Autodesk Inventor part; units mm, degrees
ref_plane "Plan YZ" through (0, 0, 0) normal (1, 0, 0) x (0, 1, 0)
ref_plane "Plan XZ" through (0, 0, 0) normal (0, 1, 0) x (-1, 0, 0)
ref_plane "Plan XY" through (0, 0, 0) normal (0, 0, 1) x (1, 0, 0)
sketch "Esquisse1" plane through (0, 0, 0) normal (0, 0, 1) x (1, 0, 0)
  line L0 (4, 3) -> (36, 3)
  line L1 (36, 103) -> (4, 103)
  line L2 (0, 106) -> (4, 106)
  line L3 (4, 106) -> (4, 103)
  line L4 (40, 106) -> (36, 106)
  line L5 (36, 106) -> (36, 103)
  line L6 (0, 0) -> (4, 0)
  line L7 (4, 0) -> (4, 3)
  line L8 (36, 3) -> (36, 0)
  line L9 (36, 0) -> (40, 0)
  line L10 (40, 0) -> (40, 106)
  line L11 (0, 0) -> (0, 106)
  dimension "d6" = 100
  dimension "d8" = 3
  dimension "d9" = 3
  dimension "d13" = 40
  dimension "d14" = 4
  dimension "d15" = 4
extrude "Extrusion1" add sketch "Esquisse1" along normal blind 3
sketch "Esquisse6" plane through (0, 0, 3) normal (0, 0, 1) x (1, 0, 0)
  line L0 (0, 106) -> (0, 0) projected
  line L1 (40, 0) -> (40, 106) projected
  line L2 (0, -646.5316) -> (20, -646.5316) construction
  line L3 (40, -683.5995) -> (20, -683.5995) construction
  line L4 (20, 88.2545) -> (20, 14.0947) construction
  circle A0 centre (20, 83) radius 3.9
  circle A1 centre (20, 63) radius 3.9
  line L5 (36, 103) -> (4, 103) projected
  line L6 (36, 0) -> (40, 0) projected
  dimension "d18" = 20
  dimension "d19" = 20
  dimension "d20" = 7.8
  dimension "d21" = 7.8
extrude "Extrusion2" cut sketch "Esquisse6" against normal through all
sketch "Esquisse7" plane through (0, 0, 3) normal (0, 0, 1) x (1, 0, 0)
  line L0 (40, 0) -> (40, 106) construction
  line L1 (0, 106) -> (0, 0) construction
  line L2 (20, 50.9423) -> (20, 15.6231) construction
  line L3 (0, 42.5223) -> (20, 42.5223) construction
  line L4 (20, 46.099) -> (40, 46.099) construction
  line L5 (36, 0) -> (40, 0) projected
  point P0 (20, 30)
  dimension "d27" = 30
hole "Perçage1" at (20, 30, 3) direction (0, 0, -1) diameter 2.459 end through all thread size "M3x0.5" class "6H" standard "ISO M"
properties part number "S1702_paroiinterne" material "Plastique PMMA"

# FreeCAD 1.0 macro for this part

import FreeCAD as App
import Part
import Sketcher

V = App.Vector


def add_polygon(sketch, points):
    """Adds a closed chain of lines whose ends are joined by coincident constraints."""
    first, n = sketch.GeometryCount, len(points)
    for a, b in zip(points, points[1:] + points[:1]):
        sketch.addGeometry(Part.LineSegment(App.Vector(*a, 0), App.Vector(*b, 0)), False)
    for i in range(n):
        sketch.addConstraint(Sketcher.Constraint("Coincident", first + i, 2, first + (i + 1) % n, 1))

doc = App.newDocument("Part")
body = doc.addObject("PartDesign::Body", "Body")

# Sketch on XY plane
sketch1 = doc.addObject("Sketcher::SketchObject", "Sketch")
body.addObject(sketch1)
sketch1.AttachmentSupport = (doc.XY_Plane, [""])
sketch1.MapMode = "FlatFace"
add_polygon(sketch1, [(4, 0), (4, 3), (36, 3), (36, 0), (40, 0), (40, 106), (36, 106), (36, 103), (4, 103), (4, 106), (0, 106), (0, 0)])  # lines 0-11
sketch1.addConstraint([
    Sketcher.Constraint("Vertical", 0),
    Sketcher.Constraint("Horizontal", 1),
    Sketcher.Constraint("Vertical", 2),
    Sketcher.Constraint("Horizontal", 3),
    Sketcher.Constraint("Vertical", 4),
    Sketcher.Constraint("Horizontal", 5),
    Sketcher.Constraint("Vertical", 6),
    Sketcher.Constraint("Horizontal", 7),
    Sketcher.Constraint("Vertical", 8),
    Sketcher.Constraint("Horizontal", 9),
    Sketcher.Constraint("Vertical", 10),
    Sketcher.Constraint("Horizontal", 11),
    Sketcher.Constraint("Coincident", 10, 2, -1, 1),
    Sketcher.Constraint("PointOnObject", 2, 2, -1),
    Sketcher.Constraint("Horizontal", 5, 2, 8, 2),
    Sketcher.Constraint("Vertical", 2, 2, 5, 2),
    Sketcher.Constraint("Vertical", 0, 2, 7, 2),
    Sketcher.Constraint("Equal", 5, 9),
    Sketcher.Constraint("Equal", 2, 6),
    Sketcher.Constraint("DistanceX", 3, 1, 3, 2, 4.0),
    Sketcher.Constraint("DistanceY", 0, 1, 0, 2, 3.0),
    Sketcher.Constraint("DistanceX", -1, 1, 3, 2, 40.0),
    Sketcher.Constraint("DistanceY", 1, 2, 6, 2, 100.0),
])
pad1 = doc.addObject("PartDesign::Pad", "Pad")
body.addObject(pad1)
pad1.Profile = sketch1
pad1.Length = 3

# Sketch on XY plane
sketch2 = doc.addObject("Sketcher::SketchObject", "Sketch001")
body.addObject(sketch2)
sketch2.AttachmentSupport = (doc.XY_Plane, [""])
sketch2.MapMode = "FlatFace"
sketch2.AttachmentOffset = App.Placement(V(0, 0, 3), App.Rotation())
sketch2.addGeometry([
    Part.Circle(V(20, 83, 0), V(0, 0, 1), 3.9),
    Part.Circle(V(20, 63, 0), V(0, 0, 1), 3.9),
], False)
sketch2.addConstraint([
    Sketcher.Constraint("Equal", 0, 1),
    Sketcher.Constraint("Vertical", 0, 3, 1, 3),
    Sketcher.Constraint("Diameter", 0, 7.8),
    Sketcher.Constraint("DistanceX", -1, 1, 0, 3, 20.0),
    Sketcher.Constraint("DistanceY", 1, 3, 0, 3, 20.0),
    Sketcher.Constraint("DistanceY", -1, 1, 0, 3, 83.0),
])
pocket1 = doc.addObject("PartDesign::Pocket", "Pocket")
body.addObject(pocket1)
pocket1.Profile = sketch2
pocket1.Type = "ThroughAll"

# Sketch on XY plane
sketch3 = doc.addObject("Sketcher::SketchObject", "Sketch002")
body.addObject(sketch3)
sketch3.AttachmentSupport = (doc.XY_Plane, [""])
sketch3.MapMode = "FlatFace"
sketch3.AttachmentOffset = App.Placement(V(0, 0, 3), App.Rotation())
sketch3.addGeometry(Part.Circle(V(20, 30, 0), V(0, 0, 1), 1.2), False)
sketch3.addConstraint([
    Sketcher.Constraint("Diameter", 0, 2.459),
    Sketcher.Constraint("DistanceX", -1, 1, 0, 3, 20.0),
    Sketcher.Constraint("DistanceY", -1, 1, 0, 3, 30.0),
])
doc.recompute()
hole = doc.addObject("PartDesign::Hole", "Hole")
body.addObject(hole)
hole.Profile = sketch3
hole.ThreadType = "None"
hole.Diameter = 2.459
hole.DepthType = "ThroughAll"

doc.recompute()
